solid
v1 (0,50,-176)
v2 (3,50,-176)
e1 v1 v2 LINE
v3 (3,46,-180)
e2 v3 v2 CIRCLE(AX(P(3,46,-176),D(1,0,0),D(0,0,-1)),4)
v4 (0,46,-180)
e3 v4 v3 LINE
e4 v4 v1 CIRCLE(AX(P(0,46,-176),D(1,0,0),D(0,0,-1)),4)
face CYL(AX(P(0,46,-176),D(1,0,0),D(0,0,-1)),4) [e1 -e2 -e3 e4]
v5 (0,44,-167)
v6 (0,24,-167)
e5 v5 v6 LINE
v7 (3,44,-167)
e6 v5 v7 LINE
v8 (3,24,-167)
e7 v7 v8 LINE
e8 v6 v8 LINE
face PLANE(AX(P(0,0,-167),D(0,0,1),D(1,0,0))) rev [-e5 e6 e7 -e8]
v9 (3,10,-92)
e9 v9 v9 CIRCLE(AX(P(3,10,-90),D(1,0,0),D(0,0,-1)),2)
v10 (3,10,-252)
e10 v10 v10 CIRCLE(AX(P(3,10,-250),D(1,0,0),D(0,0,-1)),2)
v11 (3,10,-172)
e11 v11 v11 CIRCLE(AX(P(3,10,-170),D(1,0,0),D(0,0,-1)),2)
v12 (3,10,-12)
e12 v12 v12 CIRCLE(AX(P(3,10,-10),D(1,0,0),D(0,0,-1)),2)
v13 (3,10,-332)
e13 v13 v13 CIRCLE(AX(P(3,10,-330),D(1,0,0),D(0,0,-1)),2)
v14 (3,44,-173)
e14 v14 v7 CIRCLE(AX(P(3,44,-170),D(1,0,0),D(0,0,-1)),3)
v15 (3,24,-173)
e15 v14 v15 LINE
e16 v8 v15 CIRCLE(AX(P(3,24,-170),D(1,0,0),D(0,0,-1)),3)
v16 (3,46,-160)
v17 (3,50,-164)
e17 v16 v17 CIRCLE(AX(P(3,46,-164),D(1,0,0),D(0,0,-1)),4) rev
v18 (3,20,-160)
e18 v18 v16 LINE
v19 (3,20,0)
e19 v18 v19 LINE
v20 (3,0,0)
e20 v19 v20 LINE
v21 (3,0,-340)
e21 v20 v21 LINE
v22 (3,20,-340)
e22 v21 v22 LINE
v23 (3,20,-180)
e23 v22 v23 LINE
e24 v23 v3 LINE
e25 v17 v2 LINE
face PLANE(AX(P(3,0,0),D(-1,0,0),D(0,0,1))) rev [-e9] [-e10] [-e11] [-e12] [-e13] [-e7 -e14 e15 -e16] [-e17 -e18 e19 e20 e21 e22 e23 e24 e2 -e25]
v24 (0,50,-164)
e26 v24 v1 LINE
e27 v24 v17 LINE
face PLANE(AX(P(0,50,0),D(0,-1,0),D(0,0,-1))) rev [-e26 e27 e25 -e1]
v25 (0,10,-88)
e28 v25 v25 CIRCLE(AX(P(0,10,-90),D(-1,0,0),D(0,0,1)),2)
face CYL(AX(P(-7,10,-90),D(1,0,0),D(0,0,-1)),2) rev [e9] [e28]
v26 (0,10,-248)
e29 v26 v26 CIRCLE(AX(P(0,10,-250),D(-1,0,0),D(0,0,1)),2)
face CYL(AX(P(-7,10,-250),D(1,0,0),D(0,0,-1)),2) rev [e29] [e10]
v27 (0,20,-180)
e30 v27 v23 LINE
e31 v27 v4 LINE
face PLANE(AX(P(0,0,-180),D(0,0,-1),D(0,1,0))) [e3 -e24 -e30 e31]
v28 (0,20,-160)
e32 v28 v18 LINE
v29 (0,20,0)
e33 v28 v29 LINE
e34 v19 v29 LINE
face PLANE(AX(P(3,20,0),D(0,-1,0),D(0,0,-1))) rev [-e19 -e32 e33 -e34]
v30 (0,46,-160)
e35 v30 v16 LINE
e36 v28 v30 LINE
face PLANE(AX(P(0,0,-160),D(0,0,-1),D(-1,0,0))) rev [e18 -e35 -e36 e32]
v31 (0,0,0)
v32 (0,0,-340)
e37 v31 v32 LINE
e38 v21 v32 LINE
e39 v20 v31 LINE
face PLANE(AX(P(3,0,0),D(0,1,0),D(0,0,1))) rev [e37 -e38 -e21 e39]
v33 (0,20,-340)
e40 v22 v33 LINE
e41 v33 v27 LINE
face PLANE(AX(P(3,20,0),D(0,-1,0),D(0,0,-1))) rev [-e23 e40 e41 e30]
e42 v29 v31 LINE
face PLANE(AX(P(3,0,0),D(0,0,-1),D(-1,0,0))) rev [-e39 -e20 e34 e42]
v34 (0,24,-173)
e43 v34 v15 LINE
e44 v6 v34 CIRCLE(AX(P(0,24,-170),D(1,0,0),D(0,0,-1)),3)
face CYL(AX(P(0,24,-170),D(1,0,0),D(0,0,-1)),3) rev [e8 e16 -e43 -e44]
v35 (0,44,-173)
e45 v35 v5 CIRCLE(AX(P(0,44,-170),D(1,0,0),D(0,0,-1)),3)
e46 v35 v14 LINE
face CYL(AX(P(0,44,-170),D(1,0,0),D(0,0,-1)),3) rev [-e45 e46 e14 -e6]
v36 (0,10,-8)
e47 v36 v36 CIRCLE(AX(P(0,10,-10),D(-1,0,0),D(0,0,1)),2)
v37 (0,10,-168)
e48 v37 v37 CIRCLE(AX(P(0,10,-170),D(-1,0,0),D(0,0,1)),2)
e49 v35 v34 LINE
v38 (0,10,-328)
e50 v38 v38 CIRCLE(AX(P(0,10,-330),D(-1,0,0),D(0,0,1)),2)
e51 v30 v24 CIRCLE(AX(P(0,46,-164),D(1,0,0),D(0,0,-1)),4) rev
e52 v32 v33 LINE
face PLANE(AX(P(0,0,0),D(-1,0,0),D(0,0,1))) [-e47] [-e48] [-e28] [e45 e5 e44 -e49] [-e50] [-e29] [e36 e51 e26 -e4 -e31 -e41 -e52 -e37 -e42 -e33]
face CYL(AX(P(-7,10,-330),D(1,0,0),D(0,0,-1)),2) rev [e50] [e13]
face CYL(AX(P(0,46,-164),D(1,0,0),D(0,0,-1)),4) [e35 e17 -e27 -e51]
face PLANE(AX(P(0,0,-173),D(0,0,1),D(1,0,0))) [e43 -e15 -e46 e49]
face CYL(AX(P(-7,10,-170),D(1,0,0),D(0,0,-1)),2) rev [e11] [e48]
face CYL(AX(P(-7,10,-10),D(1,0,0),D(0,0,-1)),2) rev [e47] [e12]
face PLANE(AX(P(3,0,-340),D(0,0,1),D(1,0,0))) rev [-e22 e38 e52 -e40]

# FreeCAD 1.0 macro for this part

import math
import FreeCAD as App
import Part
import Sketcher
Q = App.Units.Quantity


def add_polygon(sketch, points):
    """Adds a closed chain of lines whose ends are joined by coincident constraints."""
    first, n = sketch.GeometryCount, len(points)
    for a, b in zip(points, points[1:] + points[:1]):
        sketch.addGeometry(Part.LineSegment(App.Vector(*a, 0), App.Vector(*b, 0)), False)
    for i in range(n):
        sketch.addConstraint(Sketcher.Constraint("Coincident", first + i, 2, first + (i + 1) % n, 1))

doc = App.newDocument("Part")
body = doc.addObject("PartDesign::Body", "Body")

# Sketch on YZ plane
sketch1 = body.newObject("Sketcher::SketchObject", "Sketch")
sketch1.AttachmentSupport = (doc.getObject("YZ_Plane"), [""])
sketch1.MapMode = "FlatFace"
add_polygon(sketch1, [(20, 0), (0, 0), (0, -340), (20, -340)])  # lines 0-3
sketch1.addConstraint([
    Sketcher.Constraint("Horizontal", 0),
    Sketcher.Constraint("Vertical", 1),
    Sketcher.Constraint("Horizontal", 2),
    Sketcher.Constraint("Vertical", 3),
    Sketcher.Constraint("Coincident", 0, 2, -1, 1),
    Sketcher.Constraint("DistanceX", 0, 2, 0, 1, Q("20 mm")),
    Sketcher.Constraint("DistanceY", 1, 2, 1, 1, Q("340 mm")),
])
pad1 = body.newObject("PartDesign::Pad", "Pad")
pad1.Profile = sketch1
pad1.Length = 3

# Sketch on YZ plane
sketch2 = body.newObject("Sketcher::SketchObject", "Sketch001")
sketch2.AttachmentSupport = (doc.getObject("YZ_Plane"), [""])
sketch2.MapMode = "FlatFace"
sketch2.AttachmentOffset = App.Placement(App.Vector(0, 0, 3), App.Rotation())
sketch2.addGeometry([
    Part.Circle(App.Vector(10, -10, 0), App.Vector(0, 0, 1), 2),  # 0
    Part.Circle(App.Vector(10, -90, 0), App.Vector(0, 0, 1), 2),  # 1
    Part.Circle(App.Vector(10, -170, 0), App.Vector(0, 0, 1), 2),  # 2
    Part.Circle(App.Vector(10, -250, 0), App.Vector(0, 0, 1), 2),  # 3
    Part.Circle(App.Vector(10, -330, 0), App.Vector(0, 0, 1), 2),  # 4
], False)
sketch2.addConstraint([
    Sketcher.Constraint("Equal", 0, 1),
    Sketcher.Constraint("Equal", 1, 2),
    Sketcher.Constraint("Equal", 2, 3),
    Sketcher.Constraint("Equal", 3, 4),
    Sketcher.Constraint("Vertical", 0, 3, 1, 3),
    Sketcher.Constraint("Vertical", 1, 3, 2, 3),
    Sketcher.Constraint("Vertical", 2, 3, 3, 3),
    Sketcher.Constraint("Vertical", 3, 3, 4, 3),
    Sketcher.Constraint("Diameter", 0, Q("4 mm")),
    Sketcher.Constraint("DistanceX", -1, 1, 0, 3, Q("10 mm")),
    Sketcher.Constraint("DistanceY", 0, 3, -1, 1, Q("10 mm")),
    Sketcher.Constraint("DistanceY", 1, 3, -1, 1, Q("90 mm")),
    Sketcher.Constraint("DistanceY", 2, 3, -1, 1, Q("170 mm")),
    Sketcher.Constraint("DistanceY", 3, 3, -1, 1, Q("250 mm")),
    Sketcher.Constraint("DistanceY", 4, 3, -1, 1, Q("330 mm")),
])
pocket1 = body.newObject("PartDesign::Pocket", "Pocket")
pocket1.Profile = sketch2
pocket1.Length = 10

# Sketch on YZ plane
sketch3 = body.newObject("Sketcher::SketchObject", "Sketch002")
sketch3.AttachmentSupport = (doc.getObject("YZ_Plane"), [""])
sketch3.MapMode = "FlatFace"
sketch3.AttachmentOffset = App.Placement(App.Vector(0, 0, 3), App.Rotation())
sketch3.addGeometry([
    Part.LineSegment(App.Vector(46, -160, 0), App.Vector(20, -160, 0)),  # 0
    Part.LineSegment(App.Vector(20, -160, 0), App.Vector(20, -180, 0)),  # 1
    Part.LineSegment(App.Vector(20, -180, 0), App.Vector(46, -180, 0)),  # 2
    Part.ArcOfCircle(Part.Circle(App.Vector(46, -176, 0), App.Vector(0, 0, 1), 4), math.radians(-90), math.radians(0)),  # 3
    Part.LineSegment(App.Vector(50, -176, 0), App.Vector(50, -164, 0)),  # 4
    Part.ArcOfCircle(Part.Circle(App.Vector(46, -164, 0), App.Vector(0, 0, 1), 4), math.radians(0), math.radians(90)),  # 5
    Part.LineSegment(App.Vector(24, -167, 0), App.Vector(44, -167, 0)),  # 6
    Part.ArcOfCircle(Part.Circle(App.Vector(44, -170, 0), App.Vector(0, 0, 1), 3), math.radians(-90), math.radians(90)),  # 7
    Part.LineSegment(App.Vector(44, -173, 0), App.Vector(24, -173, 0)),  # 8
    Part.ArcOfCircle(Part.Circle(App.Vector(24, -170, 0), App.Vector(0, 0, 1), 3), math.radians(90), math.radians(270)),  # 9
], False)
sketch3.addConstraint([
    Sketcher.Constraint("Coincident", 0, 2, 1, 1),
    Sketcher.Constraint("Coincident", 1, 2, 2, 1),
    Sketcher.Constraint("Tangent", 2, 2, 3, 1),
    Sketcher.Constraint("Tangent", 3, 2, 4, 1),
    Sketcher.Constraint("Tangent", 4, 2, 5, 1),
    Sketcher.Constraint("Tangent", 5, 2, 0, 1),
    Sketcher.Constraint("Tangent", 6, 2, 7, 2),
    Sketcher.Constraint("Tangent", 7, 1, 8, 1),
    Sketcher.Constraint("Tangent", 8, 2, 9, 2),
    Sketcher.Constraint("Tangent", 9, 1, 6, 1),
    Sketcher.Constraint("Horizontal", 0),
    Sketcher.Constraint("Vertical", 1),
    Sketcher.Constraint("Horizontal", 2),
    Sketcher.Constraint("Vertical", 4),
    Sketcher.Constraint("Horizontal", 6),
    Sketcher.Constraint("Horizontal", 8),
    Sketcher.Constraint("Equal", 3, 5),
    Sketcher.Constraint("Equal", 8, 1),
    Sketcher.Constraint("Radius", 3, Q("4 mm")),
    Sketcher.Constraint("Radius", 7, Q("3 mm")),
    Sketcher.Constraint("DistanceX", 0, 2, 0, 1, Q("26 mm")),
    Sketcher.Constraint("DistanceX", 6, 1, 6, 2, Q("20 mm")),
    Sketcher.Constraint("DistanceX", -1, 1, 3, 3, Q("46 mm")),
    Sketcher.Constraint("DistanceY", 3, 3, -1, 1, Q("176 mm")),
    Sketcher.Constraint("DistanceX", -1, 1, 7, 3, Q("44 mm")),
    Sketcher.Constraint("DistanceY", 7, 3, -1, 1, Q("170 mm")),
])
pad2 = body.newObject("PartDesign::Pad", "Pad001")
pad2.Profile = sketch3
pad2.Length = 3
pad2.Reversed = True

doc.recompute()
